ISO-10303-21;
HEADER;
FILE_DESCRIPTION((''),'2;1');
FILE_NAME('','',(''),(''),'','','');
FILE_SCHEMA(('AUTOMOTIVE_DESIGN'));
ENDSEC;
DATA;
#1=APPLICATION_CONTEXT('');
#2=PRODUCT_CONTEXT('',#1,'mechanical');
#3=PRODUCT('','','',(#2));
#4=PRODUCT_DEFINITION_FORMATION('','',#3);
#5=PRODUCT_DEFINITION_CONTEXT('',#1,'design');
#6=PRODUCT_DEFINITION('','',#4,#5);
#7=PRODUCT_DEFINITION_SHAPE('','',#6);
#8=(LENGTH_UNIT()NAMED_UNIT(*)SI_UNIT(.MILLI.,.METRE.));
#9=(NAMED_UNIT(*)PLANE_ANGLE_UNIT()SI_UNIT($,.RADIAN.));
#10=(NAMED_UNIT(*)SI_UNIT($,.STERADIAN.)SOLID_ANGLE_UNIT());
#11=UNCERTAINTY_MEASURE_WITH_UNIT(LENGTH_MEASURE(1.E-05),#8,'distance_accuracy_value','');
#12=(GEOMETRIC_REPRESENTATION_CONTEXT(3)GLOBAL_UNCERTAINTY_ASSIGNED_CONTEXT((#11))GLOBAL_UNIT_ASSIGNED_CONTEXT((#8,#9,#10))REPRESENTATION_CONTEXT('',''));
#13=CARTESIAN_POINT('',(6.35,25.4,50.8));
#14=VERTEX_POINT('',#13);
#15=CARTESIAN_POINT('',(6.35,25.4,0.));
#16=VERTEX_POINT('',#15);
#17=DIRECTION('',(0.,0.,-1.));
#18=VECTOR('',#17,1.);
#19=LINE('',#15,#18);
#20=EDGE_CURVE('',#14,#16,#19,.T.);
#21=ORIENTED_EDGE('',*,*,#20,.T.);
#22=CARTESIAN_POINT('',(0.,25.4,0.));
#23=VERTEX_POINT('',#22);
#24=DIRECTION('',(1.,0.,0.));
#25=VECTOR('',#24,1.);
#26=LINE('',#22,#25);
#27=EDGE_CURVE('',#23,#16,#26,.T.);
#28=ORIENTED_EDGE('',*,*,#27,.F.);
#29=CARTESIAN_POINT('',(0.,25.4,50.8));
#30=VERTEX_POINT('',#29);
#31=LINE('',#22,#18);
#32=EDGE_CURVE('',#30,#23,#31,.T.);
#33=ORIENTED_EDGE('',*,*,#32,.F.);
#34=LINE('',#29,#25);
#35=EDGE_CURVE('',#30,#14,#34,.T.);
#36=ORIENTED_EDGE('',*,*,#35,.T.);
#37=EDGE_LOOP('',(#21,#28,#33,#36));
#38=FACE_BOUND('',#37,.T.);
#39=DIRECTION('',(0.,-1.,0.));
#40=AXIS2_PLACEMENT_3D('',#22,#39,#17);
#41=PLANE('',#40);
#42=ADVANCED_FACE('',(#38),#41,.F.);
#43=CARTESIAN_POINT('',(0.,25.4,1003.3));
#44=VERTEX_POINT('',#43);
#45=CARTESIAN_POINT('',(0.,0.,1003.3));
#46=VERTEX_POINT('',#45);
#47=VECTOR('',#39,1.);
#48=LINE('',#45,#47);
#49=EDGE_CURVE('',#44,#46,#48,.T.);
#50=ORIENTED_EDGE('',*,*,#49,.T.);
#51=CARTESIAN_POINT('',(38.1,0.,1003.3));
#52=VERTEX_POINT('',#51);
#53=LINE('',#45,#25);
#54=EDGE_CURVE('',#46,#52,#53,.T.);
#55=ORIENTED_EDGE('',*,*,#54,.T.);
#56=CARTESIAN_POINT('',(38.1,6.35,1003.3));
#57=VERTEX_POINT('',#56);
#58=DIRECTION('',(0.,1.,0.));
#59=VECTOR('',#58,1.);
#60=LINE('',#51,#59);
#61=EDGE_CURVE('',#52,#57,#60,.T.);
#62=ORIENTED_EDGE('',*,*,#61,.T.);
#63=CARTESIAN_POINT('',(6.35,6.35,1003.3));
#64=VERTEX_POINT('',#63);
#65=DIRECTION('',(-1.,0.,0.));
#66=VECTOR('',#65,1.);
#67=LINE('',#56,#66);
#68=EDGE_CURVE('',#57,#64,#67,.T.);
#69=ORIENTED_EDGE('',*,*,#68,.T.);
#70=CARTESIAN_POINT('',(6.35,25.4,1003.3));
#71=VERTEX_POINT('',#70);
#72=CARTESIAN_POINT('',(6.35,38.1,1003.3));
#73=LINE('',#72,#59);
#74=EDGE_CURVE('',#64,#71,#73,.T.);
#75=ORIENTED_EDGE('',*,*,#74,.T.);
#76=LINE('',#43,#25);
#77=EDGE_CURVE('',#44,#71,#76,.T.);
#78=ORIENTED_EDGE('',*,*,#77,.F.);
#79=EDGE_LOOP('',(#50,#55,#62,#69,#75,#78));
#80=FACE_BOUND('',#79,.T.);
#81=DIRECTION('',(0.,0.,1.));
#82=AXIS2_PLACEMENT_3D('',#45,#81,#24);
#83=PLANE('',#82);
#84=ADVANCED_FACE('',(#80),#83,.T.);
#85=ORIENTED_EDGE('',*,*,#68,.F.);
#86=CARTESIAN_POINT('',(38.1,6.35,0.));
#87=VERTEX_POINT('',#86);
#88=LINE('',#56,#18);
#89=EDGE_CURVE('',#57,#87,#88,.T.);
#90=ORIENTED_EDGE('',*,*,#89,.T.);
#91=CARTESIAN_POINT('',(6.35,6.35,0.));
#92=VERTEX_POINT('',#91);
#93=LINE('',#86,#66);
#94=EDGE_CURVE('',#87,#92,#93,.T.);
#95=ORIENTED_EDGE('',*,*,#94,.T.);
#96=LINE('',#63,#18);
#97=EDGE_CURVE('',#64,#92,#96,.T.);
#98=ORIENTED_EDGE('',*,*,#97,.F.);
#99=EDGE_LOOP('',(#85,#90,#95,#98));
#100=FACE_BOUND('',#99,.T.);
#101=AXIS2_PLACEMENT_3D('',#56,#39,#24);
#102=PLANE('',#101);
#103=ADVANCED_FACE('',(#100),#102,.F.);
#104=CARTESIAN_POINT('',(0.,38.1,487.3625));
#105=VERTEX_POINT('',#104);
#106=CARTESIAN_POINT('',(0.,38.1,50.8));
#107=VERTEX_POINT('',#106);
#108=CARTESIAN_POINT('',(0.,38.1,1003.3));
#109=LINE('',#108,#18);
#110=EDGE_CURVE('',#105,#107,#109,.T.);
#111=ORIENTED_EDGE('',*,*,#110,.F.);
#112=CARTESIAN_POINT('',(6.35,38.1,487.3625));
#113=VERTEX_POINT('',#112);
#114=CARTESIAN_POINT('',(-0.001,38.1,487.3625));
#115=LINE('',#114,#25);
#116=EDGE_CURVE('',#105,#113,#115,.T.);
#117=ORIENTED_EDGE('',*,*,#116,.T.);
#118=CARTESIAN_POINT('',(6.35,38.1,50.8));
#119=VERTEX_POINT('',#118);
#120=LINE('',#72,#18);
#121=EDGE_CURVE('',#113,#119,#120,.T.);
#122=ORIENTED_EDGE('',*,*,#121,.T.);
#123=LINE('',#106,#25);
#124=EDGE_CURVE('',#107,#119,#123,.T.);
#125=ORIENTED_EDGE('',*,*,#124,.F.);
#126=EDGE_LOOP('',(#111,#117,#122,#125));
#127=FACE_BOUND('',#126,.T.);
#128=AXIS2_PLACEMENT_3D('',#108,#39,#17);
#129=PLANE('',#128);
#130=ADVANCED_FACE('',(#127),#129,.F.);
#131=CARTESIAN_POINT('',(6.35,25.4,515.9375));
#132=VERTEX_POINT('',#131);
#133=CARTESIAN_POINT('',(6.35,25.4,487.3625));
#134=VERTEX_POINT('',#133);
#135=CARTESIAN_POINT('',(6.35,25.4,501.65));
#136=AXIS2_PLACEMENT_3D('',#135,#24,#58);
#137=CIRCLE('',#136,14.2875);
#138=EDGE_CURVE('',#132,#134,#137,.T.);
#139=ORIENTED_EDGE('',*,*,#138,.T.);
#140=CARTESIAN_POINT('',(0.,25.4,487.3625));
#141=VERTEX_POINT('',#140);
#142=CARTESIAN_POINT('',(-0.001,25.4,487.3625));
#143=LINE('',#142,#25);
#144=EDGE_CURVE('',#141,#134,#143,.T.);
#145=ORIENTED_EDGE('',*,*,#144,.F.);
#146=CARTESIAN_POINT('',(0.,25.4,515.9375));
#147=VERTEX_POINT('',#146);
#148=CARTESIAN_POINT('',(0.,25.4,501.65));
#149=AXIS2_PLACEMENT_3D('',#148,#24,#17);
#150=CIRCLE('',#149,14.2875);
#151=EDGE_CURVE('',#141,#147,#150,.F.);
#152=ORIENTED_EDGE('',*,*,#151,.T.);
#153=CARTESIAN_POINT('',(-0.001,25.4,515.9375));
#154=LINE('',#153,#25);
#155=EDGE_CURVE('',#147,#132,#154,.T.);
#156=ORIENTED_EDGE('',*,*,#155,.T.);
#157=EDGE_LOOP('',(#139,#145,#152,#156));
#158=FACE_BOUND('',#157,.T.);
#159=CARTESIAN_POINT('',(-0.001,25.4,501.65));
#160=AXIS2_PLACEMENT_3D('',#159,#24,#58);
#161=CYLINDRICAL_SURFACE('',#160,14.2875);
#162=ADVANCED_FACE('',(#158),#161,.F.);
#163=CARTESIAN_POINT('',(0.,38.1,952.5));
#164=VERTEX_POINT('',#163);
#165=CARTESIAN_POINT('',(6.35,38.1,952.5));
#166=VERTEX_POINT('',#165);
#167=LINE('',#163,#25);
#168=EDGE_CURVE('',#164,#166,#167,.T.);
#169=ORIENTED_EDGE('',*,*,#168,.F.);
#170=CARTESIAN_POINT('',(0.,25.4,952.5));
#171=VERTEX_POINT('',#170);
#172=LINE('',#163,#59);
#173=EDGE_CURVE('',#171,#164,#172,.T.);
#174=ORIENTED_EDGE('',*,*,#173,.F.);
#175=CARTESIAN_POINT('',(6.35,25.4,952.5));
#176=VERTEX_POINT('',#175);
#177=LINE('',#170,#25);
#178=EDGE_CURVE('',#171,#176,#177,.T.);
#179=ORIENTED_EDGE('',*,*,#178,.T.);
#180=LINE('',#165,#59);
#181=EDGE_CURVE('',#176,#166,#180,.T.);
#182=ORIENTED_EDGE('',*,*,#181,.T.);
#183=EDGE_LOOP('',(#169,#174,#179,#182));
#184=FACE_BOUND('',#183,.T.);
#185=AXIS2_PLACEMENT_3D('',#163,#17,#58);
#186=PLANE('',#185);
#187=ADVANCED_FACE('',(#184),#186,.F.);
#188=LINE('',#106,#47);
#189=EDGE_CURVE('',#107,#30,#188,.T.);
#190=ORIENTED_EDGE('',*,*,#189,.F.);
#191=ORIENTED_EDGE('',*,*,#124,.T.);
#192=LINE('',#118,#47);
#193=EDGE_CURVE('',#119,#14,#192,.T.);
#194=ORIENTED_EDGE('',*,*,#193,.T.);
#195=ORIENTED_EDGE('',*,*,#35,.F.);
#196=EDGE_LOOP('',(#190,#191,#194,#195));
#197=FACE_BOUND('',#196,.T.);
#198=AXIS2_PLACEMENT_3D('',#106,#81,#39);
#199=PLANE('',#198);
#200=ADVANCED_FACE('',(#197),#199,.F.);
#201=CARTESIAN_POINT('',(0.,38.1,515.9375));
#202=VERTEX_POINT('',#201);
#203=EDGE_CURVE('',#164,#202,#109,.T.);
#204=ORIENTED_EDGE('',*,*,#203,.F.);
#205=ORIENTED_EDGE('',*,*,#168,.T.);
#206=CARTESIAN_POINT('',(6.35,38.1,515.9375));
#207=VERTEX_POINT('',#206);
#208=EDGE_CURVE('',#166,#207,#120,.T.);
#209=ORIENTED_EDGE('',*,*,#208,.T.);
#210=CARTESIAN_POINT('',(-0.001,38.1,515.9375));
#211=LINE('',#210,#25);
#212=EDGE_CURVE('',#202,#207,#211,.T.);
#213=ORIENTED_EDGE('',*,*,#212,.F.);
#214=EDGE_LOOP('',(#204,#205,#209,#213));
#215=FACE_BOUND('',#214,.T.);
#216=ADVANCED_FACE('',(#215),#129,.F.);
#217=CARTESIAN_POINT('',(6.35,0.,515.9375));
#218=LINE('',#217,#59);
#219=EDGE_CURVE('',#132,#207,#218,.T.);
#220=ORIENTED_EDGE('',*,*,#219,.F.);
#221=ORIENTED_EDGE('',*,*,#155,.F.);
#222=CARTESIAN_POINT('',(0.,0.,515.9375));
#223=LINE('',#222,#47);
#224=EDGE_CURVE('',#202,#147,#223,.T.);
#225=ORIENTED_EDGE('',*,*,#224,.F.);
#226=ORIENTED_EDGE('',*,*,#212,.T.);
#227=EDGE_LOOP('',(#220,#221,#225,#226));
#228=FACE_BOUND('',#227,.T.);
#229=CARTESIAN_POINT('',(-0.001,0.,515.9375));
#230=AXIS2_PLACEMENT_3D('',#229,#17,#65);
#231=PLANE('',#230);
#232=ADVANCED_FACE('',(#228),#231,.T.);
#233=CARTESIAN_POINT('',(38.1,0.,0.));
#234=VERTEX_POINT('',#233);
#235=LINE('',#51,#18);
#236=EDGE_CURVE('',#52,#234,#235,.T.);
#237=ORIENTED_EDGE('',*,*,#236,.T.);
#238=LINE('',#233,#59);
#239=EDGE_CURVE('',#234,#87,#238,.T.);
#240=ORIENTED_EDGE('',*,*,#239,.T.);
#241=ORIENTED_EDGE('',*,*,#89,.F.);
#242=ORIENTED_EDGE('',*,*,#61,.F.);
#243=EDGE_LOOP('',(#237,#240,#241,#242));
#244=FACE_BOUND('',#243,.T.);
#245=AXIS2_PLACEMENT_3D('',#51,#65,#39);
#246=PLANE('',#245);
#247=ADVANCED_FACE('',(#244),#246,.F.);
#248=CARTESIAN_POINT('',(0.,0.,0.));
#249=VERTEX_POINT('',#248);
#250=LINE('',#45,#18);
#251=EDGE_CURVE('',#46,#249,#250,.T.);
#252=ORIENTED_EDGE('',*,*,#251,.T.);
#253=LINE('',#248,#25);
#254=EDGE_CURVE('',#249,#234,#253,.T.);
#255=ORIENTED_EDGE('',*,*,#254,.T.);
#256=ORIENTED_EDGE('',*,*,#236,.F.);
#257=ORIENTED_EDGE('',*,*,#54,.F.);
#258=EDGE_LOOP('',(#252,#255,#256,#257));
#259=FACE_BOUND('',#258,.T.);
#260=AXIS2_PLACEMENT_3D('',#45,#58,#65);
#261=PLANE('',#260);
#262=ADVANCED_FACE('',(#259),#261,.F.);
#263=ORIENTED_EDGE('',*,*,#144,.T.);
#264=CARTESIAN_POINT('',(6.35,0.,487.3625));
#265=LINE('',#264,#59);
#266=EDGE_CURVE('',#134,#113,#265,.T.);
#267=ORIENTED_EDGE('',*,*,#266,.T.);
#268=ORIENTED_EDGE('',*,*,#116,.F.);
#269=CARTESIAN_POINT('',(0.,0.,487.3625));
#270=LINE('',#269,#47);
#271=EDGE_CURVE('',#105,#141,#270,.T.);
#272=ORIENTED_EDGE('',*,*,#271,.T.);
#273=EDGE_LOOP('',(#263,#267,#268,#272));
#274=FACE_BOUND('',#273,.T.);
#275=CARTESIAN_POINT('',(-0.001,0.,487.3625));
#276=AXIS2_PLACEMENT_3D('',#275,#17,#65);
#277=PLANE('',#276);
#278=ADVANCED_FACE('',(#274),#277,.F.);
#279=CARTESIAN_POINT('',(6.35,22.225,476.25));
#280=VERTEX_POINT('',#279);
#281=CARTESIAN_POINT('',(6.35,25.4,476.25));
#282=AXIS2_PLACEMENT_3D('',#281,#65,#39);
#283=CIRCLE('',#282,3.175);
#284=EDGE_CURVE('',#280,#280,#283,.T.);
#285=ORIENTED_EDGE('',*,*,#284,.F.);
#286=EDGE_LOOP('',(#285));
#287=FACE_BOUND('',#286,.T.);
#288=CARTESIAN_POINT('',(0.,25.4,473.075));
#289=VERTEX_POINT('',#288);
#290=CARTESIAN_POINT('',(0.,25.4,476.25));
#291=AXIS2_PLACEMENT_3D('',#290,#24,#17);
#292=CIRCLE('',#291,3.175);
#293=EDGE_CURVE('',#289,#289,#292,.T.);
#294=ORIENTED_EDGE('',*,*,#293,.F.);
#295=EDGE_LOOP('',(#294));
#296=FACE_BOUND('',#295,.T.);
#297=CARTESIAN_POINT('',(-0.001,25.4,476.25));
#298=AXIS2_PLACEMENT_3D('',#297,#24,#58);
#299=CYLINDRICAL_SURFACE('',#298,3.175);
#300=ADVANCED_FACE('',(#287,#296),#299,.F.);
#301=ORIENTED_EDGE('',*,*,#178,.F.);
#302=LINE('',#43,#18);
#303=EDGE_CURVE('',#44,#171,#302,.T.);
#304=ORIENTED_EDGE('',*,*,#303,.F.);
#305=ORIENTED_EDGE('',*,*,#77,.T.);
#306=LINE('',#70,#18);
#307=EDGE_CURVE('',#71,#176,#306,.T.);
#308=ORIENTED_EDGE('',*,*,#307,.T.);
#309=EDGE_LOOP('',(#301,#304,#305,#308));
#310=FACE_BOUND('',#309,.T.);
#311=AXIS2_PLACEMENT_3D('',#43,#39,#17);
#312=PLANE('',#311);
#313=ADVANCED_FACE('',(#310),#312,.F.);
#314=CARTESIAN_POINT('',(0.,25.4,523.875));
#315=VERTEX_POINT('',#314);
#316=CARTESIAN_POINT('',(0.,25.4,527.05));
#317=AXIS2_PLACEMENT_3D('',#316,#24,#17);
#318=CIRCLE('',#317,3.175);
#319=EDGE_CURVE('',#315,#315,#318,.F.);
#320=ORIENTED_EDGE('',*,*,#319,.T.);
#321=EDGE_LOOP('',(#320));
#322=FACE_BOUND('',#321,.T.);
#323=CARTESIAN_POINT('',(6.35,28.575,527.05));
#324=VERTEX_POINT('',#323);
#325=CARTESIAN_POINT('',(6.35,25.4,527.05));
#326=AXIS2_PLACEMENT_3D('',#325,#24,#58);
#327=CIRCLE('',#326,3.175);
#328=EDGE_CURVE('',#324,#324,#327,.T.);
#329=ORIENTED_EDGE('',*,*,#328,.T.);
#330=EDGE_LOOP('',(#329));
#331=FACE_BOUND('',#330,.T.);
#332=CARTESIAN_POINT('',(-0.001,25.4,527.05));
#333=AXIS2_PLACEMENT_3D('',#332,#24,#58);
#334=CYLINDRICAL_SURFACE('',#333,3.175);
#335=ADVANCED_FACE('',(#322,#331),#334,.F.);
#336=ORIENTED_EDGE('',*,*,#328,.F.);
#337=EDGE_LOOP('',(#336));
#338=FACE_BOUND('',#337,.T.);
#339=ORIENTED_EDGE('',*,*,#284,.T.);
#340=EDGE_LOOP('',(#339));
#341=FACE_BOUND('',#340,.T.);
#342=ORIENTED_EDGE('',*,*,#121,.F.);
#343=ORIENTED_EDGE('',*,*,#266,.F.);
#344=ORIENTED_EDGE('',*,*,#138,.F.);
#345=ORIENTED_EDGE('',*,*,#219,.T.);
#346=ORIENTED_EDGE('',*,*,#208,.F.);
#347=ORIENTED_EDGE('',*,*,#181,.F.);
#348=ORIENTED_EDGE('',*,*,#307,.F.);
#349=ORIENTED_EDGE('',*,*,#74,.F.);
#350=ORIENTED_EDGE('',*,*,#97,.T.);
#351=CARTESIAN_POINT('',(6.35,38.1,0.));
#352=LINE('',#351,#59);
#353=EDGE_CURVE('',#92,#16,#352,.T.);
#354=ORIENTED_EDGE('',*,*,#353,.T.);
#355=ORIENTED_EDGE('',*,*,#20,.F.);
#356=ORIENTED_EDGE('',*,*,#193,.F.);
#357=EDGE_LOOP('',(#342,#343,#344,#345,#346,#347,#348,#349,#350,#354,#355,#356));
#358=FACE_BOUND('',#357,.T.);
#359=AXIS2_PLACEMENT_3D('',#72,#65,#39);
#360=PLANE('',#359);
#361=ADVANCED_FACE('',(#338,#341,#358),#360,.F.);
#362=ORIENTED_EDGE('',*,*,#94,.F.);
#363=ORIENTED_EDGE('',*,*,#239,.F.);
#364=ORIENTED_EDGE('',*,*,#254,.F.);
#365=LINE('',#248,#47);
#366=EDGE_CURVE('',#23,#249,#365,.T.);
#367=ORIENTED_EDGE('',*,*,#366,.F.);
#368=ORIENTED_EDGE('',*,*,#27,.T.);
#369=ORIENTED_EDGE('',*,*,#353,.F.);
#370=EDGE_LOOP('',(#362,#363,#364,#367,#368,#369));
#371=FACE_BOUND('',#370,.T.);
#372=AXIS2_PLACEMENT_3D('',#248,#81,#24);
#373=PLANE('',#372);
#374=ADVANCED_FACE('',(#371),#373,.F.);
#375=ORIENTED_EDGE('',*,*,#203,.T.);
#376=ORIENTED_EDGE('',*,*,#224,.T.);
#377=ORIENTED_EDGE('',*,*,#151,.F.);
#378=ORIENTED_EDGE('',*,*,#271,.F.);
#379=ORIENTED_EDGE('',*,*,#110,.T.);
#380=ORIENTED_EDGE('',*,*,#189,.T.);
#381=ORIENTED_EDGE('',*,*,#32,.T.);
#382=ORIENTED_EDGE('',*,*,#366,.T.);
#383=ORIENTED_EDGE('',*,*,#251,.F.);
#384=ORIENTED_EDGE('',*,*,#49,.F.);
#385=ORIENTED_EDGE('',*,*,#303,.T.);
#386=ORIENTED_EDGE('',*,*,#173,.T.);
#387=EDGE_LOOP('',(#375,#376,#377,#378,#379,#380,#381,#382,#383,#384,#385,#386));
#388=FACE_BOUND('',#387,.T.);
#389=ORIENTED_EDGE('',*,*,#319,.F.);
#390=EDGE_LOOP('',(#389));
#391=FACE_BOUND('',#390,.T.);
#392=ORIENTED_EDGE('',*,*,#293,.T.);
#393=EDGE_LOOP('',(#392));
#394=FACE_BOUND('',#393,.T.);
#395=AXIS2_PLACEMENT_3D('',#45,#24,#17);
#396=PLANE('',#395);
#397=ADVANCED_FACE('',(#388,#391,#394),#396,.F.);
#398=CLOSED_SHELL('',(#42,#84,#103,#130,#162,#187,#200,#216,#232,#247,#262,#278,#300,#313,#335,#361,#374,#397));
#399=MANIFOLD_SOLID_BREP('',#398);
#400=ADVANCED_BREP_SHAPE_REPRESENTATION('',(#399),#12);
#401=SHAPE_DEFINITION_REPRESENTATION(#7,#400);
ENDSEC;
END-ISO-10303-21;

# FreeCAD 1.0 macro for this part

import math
import FreeCAD as App
import Part
import Sketcher
from FreeCAD import Vector
Q = App.Units.Quantity


def add_polygon(sketch, points):
    """Adds a closed chain of lines whose ends are joined by coincident constraints."""
    first, n = sketch.GeometryCount, len(points)
    for a, b in zip(points, points[1:] + points[:1]):
        sketch.addGeometry(Part.LineSegment(App.Vector(*a, 0), App.Vector(*b, 0)), False)
    for i in range(n):
        sketch.addConstraint(Sketcher.Constraint("Coincident", first + i, 2, first + (i + 1) % n, 1))

doc = App.newDocument("Part")
body = doc.addObject("PartDesign::Body", "Body")

# Sketch on XY plane
sketch1 = doc.addObject("Sketcher::SketchObject", "Sketch")
body.addObject(sketch1)
sketch1.AttachmentSupport = (doc.XY_Plane, [""])
sketch1.MapMode = "FlatFace"
add_polygon(sketch1, [(0, 38), (0, 0), (38, 0), (38, 6), (6, 6), (6, 38)])  # lines 0-5
sketch1.addConstraint([
    Sketcher.Constraint("Vertical", 0),
    Sketcher.Constraint("Horizontal", 1),
    Sketcher.Constraint("Vertical", 2),
    Sketcher.Constraint("Horizontal", 3),
    Sketcher.Constraint("Vertical", 4),
    Sketcher.Constraint("Horizontal", 5),
    Sketcher.Constraint("Coincident", 0, 2, -1, 1),
    Sketcher.Constraint("Equal", 1, 0),
    Sketcher.Constraint("Equal", 5, 2),
    Sketcher.Constraint("DistanceX", 1, 1, 1, 2, Q("1.5 in")),
    Sketcher.Constraint("DistanceX", 3, 2, 3, 1, Q("1.25 in")),
])
pad1 = doc.addObject("PartDesign::Pad", "Pad")
body.addObject(pad1)
pad1.Profile = sketch1
pad1.Length = Q("39.5 in")

# Sketch on YZ plane
sketch2 = doc.addObject("Sketcher::SketchObject", "Sketch001")
body.addObject(sketch2)
sketch2.AttachmentSupport = (doc.YZ_Plane, [""])
sketch2.MapMode = "FlatFace"
sketch2.AttachmentOffset = App.Placement(Vector(0, 0, 0.25 * 25.4), App.Rotation())
sketch2.addGeometry([
    Part.LineSegment(Vector(38, 516, 0), Vector(25, 516, 0)),
    Part.ArcOfCircle(Part.Circle(Vector(25, 502, 0), Vector(0, 0, 1), 14), math.radians(90), math.radians(270)),
    Part.LineSegment(Vector(25, 487, 0), Vector(38, 487, 0)),
    Part.LineSegment(Vector(38, 487, 0), Vector(38, 516, 0)),
], False)
sketch2.addConstraint([
    Sketcher.Constraint("Tangent", 0, 2, 1, 1),
    Sketcher.Constraint("Tangent", 1, 2, 2, 1),
    Sketcher.Constraint("Coincident", 2, 2, 3, 1),
    Sketcher.Constraint("Coincident", 3, 2, 0, 1),
    Sketcher.Constraint("Horizontal", 0),
    Sketcher.Constraint("Horizontal", 2),
    Sketcher.Constraint("Vertical", 3),
    Sketcher.Constraint("DistanceX", 0, 2, 0, 1, Q("0.5 in")),
    Sketcher.Constraint("DistanceX", -1, 1, 1, 3, Q("1 in")),
    Sketcher.Constraint("Radius", 1, Q("0.5625 in")),
    Sketcher.Constraint("DistanceY", -1, 1, 1, 3, Q("19.75 in")),
])
pocket1 = doc.addObject("PartDesign::Pocket", "Pocket")
body.addObject(pocket1)
pocket1.Profile = sketch2
pocket1.Type = "UpToFirst"

# Sketch on YZ plane
sketch3 = doc.addObject("Sketcher::SketchObject", "Sketch002")
body.addObject(sketch3)
sketch3.AttachmentSupport = (doc.YZ_Plane, [""])
sketch3.MapMode = "FlatFace"
sketch3.AttachmentOffset = App.Placement(Vector(0, 0, 0.25 * 25.4), App.Rotation())
sketch3.addGeometry(Part.Circle(Vector(25.4, 527, 0), Vector(0, 0, 1), 3.2), False)
sketch3.addConstraint([
    Sketcher.Constraint("Diameter", 0, Q("0.25 in")),
    Sketcher.Constraint("DistanceX", -1, 1, 0, 3, Q("1 in")),
    Sketcher.Constraint("DistanceY", -1, 1, 0, 3, Q("20.75 in")),
])
pocket2 = doc.addObject("PartDesign::Pocket", "Pocket001")
body.addObject(pocket2)
pocket2.Profile = sketch3
pocket2.Type = "UpToFirst"

# Sketch on YZ plane
sketch4 = doc.addObject("Sketcher::SketchObject", "Sketch003")
body.addObject(sketch4)
sketch4.AttachmentSupport = (doc.YZ_Plane, [""])
sketch4.MapMode = "FlatFace"
sketch4.AttachmentOffset = App.Placement(Vector(0, 0, 0.25 * 25.4), App.Rotation())
sketch4.addGeometry(Part.Circle(Vector(25.4, 476.2, 0), Vector(0, 0, 1), 3.2), False)
sketch4.addConstraint([
    Sketcher.Constraint("Diameter", 0, Q("0.25 in")),
    Sketcher.Constraint("DistanceX", -1, 1, 0, 3, Q("1 in")),
    Sketcher.Constraint("DistanceY", -1, 1, 0, 3, Q("18.75 in")),
])
pocket3 = doc.addObject("PartDesign::Pocket", "Pocket002")
body.addObject(pocket3)
pocket3.Profile = sketch4
pocket3.Type = "UpToFirst"

# Sketch on YZ plane
sketch5 = doc.addObject("Sketcher::SketchObject", "Sketch004")
body.addObject(sketch5)
sketch5.AttachmentSupport = (doc.YZ_Plane, [""])
sketch5.MapMode = "FlatFace"
sketch5.AttachmentOffset = App.Placement(Vector(0, 0, 0.25 * 25.4), App.Rotation())
add_polygon(sketch5, [(38, 51), (25, 51), (25, 0), (38, 0)])  # lines 0-3
add_polygon(sketch5, [(38, 1003), (25, 1003), (25, 952), (38, 952)])  # lines 4-7
sketch5.addConstraint([
    Sketcher.Constraint("Horizontal", 0),
    Sketcher.Constraint("Vertical", 1),
    Sketcher.Constraint("Horizontal", 2),
    Sketcher.Constraint("Vertical", 3),
    Sketcher.Constraint("Horizontal", 4),
    Sketcher.Constraint("Vertical", 5),
    Sketcher.Constraint("Horizontal", 6),
    Sketcher.Constraint("Vertical", 7),
    Sketcher.Constraint("PointOnObject", 1, 2, -1),
    Sketcher.Constraint("Vertical", 1, 2, 4, 2),
    Sketcher.Constraint("Vertical", 3, 2, 6, 2),
    Sketcher.Constraint("Equal", 3, 5),
    Sketcher.Constraint("DistanceY", 1, 2, 1, 1, Q("2 in")),
    Sketcher.Constraint("DistanceX", 0, 2, 0, 1, Q("0.5 in")),
    Sketcher.Constraint("DistanceX", -1, 1, 0, 2, Q("1 in")),
    Sketcher.Constraint("DistanceY", -1, 1, 4, 2, Q("39.5 in")),
])
pocket4 = doc.addObject("PartDesign::Pocket", "Pocket003")
body.addObject(pocket4)
pocket4.Profile = sketch5
pocket4.Type = "ThroughAll"

doc.recompute()
